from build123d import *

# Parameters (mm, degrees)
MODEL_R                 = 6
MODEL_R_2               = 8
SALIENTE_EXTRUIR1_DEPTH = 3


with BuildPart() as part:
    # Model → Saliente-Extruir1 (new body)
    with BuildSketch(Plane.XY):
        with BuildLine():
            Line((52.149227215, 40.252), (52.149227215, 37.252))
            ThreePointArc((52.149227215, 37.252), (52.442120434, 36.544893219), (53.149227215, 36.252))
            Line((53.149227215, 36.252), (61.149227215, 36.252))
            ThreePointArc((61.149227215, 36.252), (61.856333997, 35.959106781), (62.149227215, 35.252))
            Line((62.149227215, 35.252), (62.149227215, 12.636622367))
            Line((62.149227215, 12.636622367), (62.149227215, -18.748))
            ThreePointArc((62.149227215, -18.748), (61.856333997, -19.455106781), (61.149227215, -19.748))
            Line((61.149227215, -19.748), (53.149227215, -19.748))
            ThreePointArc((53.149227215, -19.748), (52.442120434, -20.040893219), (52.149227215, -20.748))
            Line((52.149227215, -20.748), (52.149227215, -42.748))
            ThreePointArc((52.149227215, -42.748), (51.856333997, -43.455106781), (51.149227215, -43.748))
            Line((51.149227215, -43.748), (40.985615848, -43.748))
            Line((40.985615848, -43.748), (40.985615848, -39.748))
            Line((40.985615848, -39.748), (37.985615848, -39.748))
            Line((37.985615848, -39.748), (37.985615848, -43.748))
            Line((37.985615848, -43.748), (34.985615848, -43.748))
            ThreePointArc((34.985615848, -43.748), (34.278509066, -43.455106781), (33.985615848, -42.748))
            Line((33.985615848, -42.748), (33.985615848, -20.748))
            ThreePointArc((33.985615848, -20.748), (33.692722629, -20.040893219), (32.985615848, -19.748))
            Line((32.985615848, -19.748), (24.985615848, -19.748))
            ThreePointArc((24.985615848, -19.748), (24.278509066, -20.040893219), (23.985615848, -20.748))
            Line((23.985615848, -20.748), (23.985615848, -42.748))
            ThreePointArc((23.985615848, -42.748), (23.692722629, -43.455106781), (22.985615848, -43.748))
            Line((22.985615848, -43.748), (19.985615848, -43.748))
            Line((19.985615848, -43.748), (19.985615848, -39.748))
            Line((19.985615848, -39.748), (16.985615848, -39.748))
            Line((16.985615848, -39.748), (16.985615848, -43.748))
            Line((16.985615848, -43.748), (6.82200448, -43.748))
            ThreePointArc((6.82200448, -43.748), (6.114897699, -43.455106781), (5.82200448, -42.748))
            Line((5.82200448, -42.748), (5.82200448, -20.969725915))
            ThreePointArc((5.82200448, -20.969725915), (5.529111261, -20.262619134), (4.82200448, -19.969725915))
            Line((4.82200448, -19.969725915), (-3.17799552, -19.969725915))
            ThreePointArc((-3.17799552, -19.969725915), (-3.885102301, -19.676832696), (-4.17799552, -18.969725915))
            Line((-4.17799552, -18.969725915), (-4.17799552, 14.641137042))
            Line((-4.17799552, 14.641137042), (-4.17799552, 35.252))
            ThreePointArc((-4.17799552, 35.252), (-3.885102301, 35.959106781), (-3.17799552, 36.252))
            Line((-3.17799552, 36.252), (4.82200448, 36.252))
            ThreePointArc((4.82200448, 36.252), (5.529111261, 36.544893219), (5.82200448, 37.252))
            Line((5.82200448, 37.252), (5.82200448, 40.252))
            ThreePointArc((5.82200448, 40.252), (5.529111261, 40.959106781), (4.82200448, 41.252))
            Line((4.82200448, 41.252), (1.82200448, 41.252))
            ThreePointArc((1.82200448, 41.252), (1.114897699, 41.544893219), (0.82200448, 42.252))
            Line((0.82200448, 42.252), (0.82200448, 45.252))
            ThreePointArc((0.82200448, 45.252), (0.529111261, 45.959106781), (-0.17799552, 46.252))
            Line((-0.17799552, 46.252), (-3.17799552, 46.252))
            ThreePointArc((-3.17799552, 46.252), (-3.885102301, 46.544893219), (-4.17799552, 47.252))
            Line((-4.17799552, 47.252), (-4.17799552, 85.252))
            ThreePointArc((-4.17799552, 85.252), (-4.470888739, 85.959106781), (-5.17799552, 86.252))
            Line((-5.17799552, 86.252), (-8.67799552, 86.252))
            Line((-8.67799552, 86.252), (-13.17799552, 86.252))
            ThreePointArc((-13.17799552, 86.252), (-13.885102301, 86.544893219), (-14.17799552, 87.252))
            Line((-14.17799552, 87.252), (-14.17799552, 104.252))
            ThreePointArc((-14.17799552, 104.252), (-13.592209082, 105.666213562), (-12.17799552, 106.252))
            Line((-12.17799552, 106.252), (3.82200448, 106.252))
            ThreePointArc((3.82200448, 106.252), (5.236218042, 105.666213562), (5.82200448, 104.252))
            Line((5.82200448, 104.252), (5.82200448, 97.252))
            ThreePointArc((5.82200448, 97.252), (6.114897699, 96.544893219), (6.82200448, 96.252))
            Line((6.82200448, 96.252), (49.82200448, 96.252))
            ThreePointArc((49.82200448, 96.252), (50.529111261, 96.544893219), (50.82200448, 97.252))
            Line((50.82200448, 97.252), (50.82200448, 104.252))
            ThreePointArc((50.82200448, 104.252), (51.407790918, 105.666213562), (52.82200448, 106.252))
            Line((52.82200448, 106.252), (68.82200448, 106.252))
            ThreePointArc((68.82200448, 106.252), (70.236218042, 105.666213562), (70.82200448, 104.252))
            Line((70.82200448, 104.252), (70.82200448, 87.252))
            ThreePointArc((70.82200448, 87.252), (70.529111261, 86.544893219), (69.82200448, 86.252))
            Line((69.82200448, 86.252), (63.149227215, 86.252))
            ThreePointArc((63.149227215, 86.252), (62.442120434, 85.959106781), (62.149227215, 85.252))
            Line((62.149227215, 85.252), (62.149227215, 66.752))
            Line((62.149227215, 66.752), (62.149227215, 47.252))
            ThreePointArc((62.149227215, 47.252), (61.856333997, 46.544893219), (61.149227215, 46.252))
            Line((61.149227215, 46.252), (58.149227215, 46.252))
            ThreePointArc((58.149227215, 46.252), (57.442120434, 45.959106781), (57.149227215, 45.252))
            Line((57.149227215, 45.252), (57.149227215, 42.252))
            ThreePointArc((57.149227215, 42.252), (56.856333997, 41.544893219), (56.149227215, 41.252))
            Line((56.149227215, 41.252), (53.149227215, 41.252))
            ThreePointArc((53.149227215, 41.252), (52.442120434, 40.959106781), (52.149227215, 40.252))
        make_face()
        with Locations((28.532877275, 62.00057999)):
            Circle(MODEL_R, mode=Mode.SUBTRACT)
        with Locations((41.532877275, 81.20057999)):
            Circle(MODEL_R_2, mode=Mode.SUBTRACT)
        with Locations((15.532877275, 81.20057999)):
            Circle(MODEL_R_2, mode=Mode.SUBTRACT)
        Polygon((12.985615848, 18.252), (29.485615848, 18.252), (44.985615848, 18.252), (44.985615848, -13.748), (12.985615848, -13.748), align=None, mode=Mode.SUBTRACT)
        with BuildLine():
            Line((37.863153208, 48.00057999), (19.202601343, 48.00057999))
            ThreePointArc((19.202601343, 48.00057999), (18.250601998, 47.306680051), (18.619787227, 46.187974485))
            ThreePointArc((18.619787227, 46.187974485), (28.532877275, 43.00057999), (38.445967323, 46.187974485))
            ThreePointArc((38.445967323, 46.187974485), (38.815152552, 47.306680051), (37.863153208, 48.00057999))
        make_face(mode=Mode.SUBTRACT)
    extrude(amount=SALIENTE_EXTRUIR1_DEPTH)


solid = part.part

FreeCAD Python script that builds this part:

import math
import FreeCAD as App
import Part
import Sketcher


def add_polygon(sketch, points):
    """Adds a closed chain of lines whose ends are joined by coincident constraints."""
    first, n = sketch.GeometryCount, len(points)
    for a, b in zip(points, points[1:] + points[:1]):
        sketch.addGeometry(Part.LineSegment(App.Vector(*a, 0), App.Vector(*b, 0)), False)
    for i in range(n):
        sketch.addConstraint(Sketcher.Constraint("Coincident", first + i, 2, first + (i + 1) % n, 1))

doc = App.newDocument("Part")
body = doc.addObject("PartDesign::Body", "Body")

sketch1 = body.newObject("Sketcher::SketchObject", "Sketch")
sketch1.AttachmentSupport = (doc.getObject("XY_Plane"), [""])
sketch1.MapMode = "FlatFace"
sketch1.addGeometry(Part.LineSegment(App.Vector(52.1, 37.3, 0), App.Vector(52.1, 40.3, 0)), False)
sketch1.addGeometry(Part.ArcOfCircle(Part.Circle(App.Vector(53.1, 40.3, 0), App.Vector(0, 0, 1), 1), math.radians(90), math.radians(180)), False)
sketch1.addGeometry(Part.LineSegment(App.Vector(53.1, 41.3, 0), App.Vector(56.1, 41.3, 0)), False)
sketch1.addGeometry(Part.ArcOfCircle(Part.Circle(App.Vector(56.1, 42.3, 0), App.Vector(0, 0, 1), 1), math.radians(-90), math.radians(0)), False)
sketch1.addGeometry(Part.LineSegment(App.Vector(57.1, 42.3, 0), App.Vector(57.1, 45.3, 0)), False)
sketch1.addGeometry(Part.ArcOfCircle(Part.Circle(App.Vector(58.1, 45.3, 0), App.Vector(0, 0, 1), 1), math.radians(90), math.radians(180)), False)
sketch1.addGeometry(Part.LineSegment(App.Vector(58.1, 46.3, 0), App.Vector(61.1, 46.3, 0)), False)
sketch1.addGeometry(Part.ArcOfCircle(Part.Circle(App.Vector(61.1, 47.3, 0), App.Vector(0, 0, 1), 1), math.radians(-90), math.radians(0)), False)
sketch1.addGeometry(Part.LineSegment(App.Vector(62.1, 47.3, 0), App.Vector(62.1, 85.3, 0)), False)
sketch1.addGeometry(Part.ArcOfCircle(Part.Circle(App.Vector(63.1, 85.3, 0), App.Vector(0, 0, 1), 1), math.radians(90), math.radians(180)), False)
sketch1.addGeometry(Part.LineSegment(App.Vector(63.1, 86.3, 0), App.Vector(69.8, 86.3, 0)), False)
sketch1.addGeometry(Part.ArcOfCircle(Part.Circle(App.Vector(69.8, 87.3, 0), App.Vector(0, 0, 1), 1), math.radians(-90), math.radians(0)), False)
sketch1.addGeometry(Part.LineSegment(App.Vector(70.8, 87.3, 0), App.Vector(70.8, 104.3, 0)), False)
sketch1.addGeometry(Part.ArcOfCircle(Part.Circle(App.Vector(68.8, 104.3, 0), App.Vector(0, 0, 1), 2), math.radians(0), math.radians(90)), False)
sketch1.addGeometry(Part.LineSegment(App.Vector(68.8, 106.3, 0), App.Vector(52.8, 106.3, 0)), False)
sketch1.addGeometry(Part.ArcOfCircle(Part.Circle(App.Vector(52.8, 104.3, 0), App.Vector(0, 0, 1), 2), math.radians(90), math.radians(180)), False)
sketch1.addGeometry(Part.LineSegment(App.Vector(50.8, 104.3, 0), App.Vector(50.8, 97.3, 0)), False)
sketch1.addGeometry(Part.ArcOfCircle(Part.Circle(App.Vector(49.8, 97.3, 0), App.Vector(0, 0, 1), 1), math.radians(-90), math.radians(0)), False)
sketch1.addGeometry(Part.LineSegment(App.Vector(49.8, 96.3, 0), App.Vector(6.8, 96.3, 0)), False)
sketch1.addGeometry(Part.ArcOfCircle(Part.Circle(App.Vector(6.8, 97.3, 0), App.Vector(0, 0, 1), 1), math.radians(-180), math.radians(-90)), False)
sketch1.addGeometry(Part.LineSegment(App.Vector(5.8, 97.3, 0), App.Vector(5.8, 104.3, 0)), False)
sketch1.addGeometry(Part.ArcOfCircle(Part.Circle(App.Vector(3.8, 104.3, 0), App.Vector(0, 0, 1), 2), math.radians(0), math.radians(90)), False)
sketch1.addGeometry(Part.LineSegment(App.Vector(3.8, 106.3, 0), App.Vector(-12.2, 106.3, 0)), False)
sketch1.addGeometry(Part.ArcOfCircle(Part.Circle(App.Vector(-12.2, 104.3, 0), App.Vector(0, 0, 1), 2), math.radians(90), math.radians(180)), False)
sketch1.addGeometry(Part.LineSegment(App.Vector(-14.2, 104.3, 0), App.Vector(-14.2, 87.3, 0)), False)
sketch1.addGeometry(Part.ArcOfCircle(Part.Circle(App.Vector(-13.2, 87.3, 0), App.Vector(0, 0, 1), 1), math.radians(-180), math.radians(-90)), False)
sketch1.addGeometry(Part.LineSegment(App.Vector(-13.2, 86.3, 0), App.Vector(-5.2, 86.3, 0)), False)
sketch1.addGeometry(Part.ArcOfCircle(Part.Circle(App.Vector(-5.2, 85.3, 0), App.Vector(0, 0, 1), 1), math.radians(0), math.radians(90)), False)
sketch1.addGeometry(Part.LineSegment(App.Vector(-4.2, 85.3, 0), App.Vector(-4.2, 47.3, 0)), False)
sketch1.addGeometry(Part.ArcOfCircle(Part.Circle(App.Vector(-3.2, 47.3, 0), App.Vector(0, 0, 1), 1), math.radians(-180), math.radians(-90)), False)
sketch1.addGeometry(Part.LineSegment(App.Vector(-3.2, 46.3, 0), App.Vector(-0.2, 46.3, 0)), False)
sketch1.addGeometry(Part.ArcOfCircle(Part.Circle(App.Vector(-0.2, 45.3, 0), App.Vector(0, 0, 1), 1), math.radians(0), math.radians(90)), False)
sketch1.addGeometry(Part.LineSegment(App.Vector(0.8, 45.3, 0), App.Vector(0.8, 42.3, 0)), False)
sketch1.addGeometry(Part.ArcOfCircle(Part.Circle(App.Vector(1.8, 42.3, 0), App.Vector(0, 0, 1), 1), math.radians(-180), math.radians(-90)), False)
sketch1.addGeometry(Part.LineSegment(App.Vector(1.8, 41.3, 0), App.Vector(4.8, 41.3, 0)), False)
sketch1.addGeometry(Part.ArcOfCircle(Part.Circle(App.Vector(4.8, 40.3, 0), App.Vector(0, 0, 1), 1), math.radians(0), math.radians(90)), False)
sketch1.addGeometry(Part.LineSegment(App.Vector(5.8, 40.3, 0), App.Vector(5.8, 37.3, 0)), False)
sketch1.addGeometry(Part.ArcOfCircle(Part.Circle(App.Vector(4.8, 37.3, 0), App.Vector(0, 0, 1), 1), math.radians(-90), math.radians(0)), False)
sketch1.addGeometry(Part.LineSegment(App.Vector(4.8, 36.3, 0), App.Vector(-3.2, 36.3, 0)), False)
sketch1.addGeometry(Part.ArcOfCircle(Part.Circle(App.Vector(-3.2, 35.3, 0), App.Vector(0, 0, 1), 1), math.radians(90), math.radians(180)), False)
sketch1.addGeometry(Part.LineSegment(App.Vector(-4.2, 35.3, 0), App.Vector(-4.2, -19, 0)), False)
sketch1.addGeometry(Part.ArcOfCircle(Part.Circle(App.Vector(-3.2, -19, 0), App.Vector(0, 0, 1), 1), math.radians(-180), math.radians(-90)), False)
sketch1.addGeometry(Part.LineSegment(App.Vector(-3.2, -20, 0), App.Vector(4.8, -20, 0)), False)
sketch1.addGeometry(Part.ArcOfCircle(Part.Circle(App.Vector(4.8, -21, 0), App.Vector(0, 0, 1), 1), math.radians(0), math.radians(90)), False)
sketch1.addGeometry(Part.LineSegment(App.Vector(5.8, -21, 0), App.Vector(5.8, -42.7, 0)), False)
sketch1.addGeometry(Part.ArcOfCircle(Part.Circle(App.Vector(6.8, -42.7, 0), App.Vector(0, 0, 1), 1), math.radians(-180), math.radians(-90)), False)
sketch1.addGeometry(Part.LineSegment(App.Vector(6.8, -43.7, 0), App.Vector(17, -43.7, 0)), False)
sketch1.addGeometry(Part.LineSegment(App.Vector(17, -43.7, 0), App.Vector(17, -39.7, 0)), False)
sketch1.addGeometry(Part.LineSegment(App.Vector(17, -39.7, 0), App.Vector(20, -39.7, 0)), False)
sketch1.addGeometry(Part.LineSegment(App.Vector(20, -39.7, 0), App.Vector(20, -43.7, 0)), False)
sketch1.addGeometry(Part.LineSegment(App.Vector(20, -43.7, 0), App.Vector(23, -43.7, 0)), False)
sketch1.addGeometry(Part.ArcOfCircle(Part.Circle(App.Vector(23, -42.7, 0), App.Vector(0, 0, 1), 1), math.radians(-90), math.radians(0)), False)
sketch1.addGeometry(Part.LineSegment(App.Vector(24, -42.7, 0), App.Vector(24, -20.7, 0)), False)
sketch1.addGeometry(Part.ArcOfCircle(Part.Circle(App.Vector(25, -20.7, 0), App.Vector(0, 0, 1), 1), math.radians(90), math.radians(180)), False)
sketch1.addGeometry(Part.LineSegment(App.Vector(25, -19.7, 0), App.Vector(33, -19.7, 0)), False)
sketch1.addGeometry(Part.ArcOfCircle(Part.Circle(App.Vector(33, -20.7, 0), App.Vector(0, 0, 1), 1), math.radians(0), math.radians(90)), False)
sketch1.addGeometry(Part.LineSegment(App.Vector(34, -20.7, 0), App.Vector(34, -42.7, 0)), False)
sketch1.addGeometry(Part.ArcOfCircle(Part.Circle(App.Vector(35, -42.7, 0), App.Vector(0, 0, 1), 1), math.radians(180), math.radians(270)), False)
sketch1.addGeometry(Part.LineSegment(App.Vector(35, -43.7, 0), App.Vector(38, -43.7, 0)), False)
sketch1.addGeometry(Part.LineSegment(App.Vector(38, -43.7, 0), App.Vector(38, -39.7, 0)), False)
sketch1.addGeometry(Part.LineSegment(App.Vector(38, -39.7, 0), App.Vector(41, -39.7, 0)), False)
sketch1.addGeometry(Part.LineSegment(App.Vector(41, -39.7, 0), App.Vector(41, -43.7, 0)), False)
sketch1.addGeometry(Part.LineSegment(App.Vector(41, -43.7, 0), App.Vector(51.1, -43.7, 0)), False)
sketch1.addGeometry(Part.ArcOfCircle(Part.Circle(App.Vector(51.1, -42.7, 0), App.Vector(0, 0, 1), 1), math.radians(-90), math.radians(0)), False)
sketch1.addGeometry(Part.LineSegment(App.Vector(52.1, -42.7, 0), App.Vector(52.1, -20.7, 0)), False)
sketch1.addGeometry(Part.ArcOfCircle(Part.Circle(App.Vector(53.1, -20.7, 0), App.Vector(0, 0, 1), 1), math.radians(90), math.radians(180)), False)
sketch1.addGeometry(Part.LineSegment(App.Vector(53.1, -19.7, 0), App.Vector(61.1, -19.7, 0)), False)
sketch1.addGeometry(Part.ArcOfCircle(Part.Circle(App.Vector(61.1, -18.7, 0), App.Vector(0, 0, 1), 1), math.radians(-90), math.radians(0)), False)
sketch1.addGeometry(Part.LineSegment(App.Vector(62.1, -18.7, 0), App.Vector(62.1, 35.3, 0)), False)
sketch1.addGeometry(Part.ArcOfCircle(Part.Circle(App.Vector(61.1, 35.3, 0), App.Vector(0, 0, 1), 1), math.radians(0), math.radians(90)), False)
sketch1.addGeometry(Part.LineSegment(App.Vector(61.1, 36.3, 0), App.Vector(53.1, 36.3, 0)), False)
sketch1.addGeometry(Part.ArcOfCircle(Part.Circle(App.Vector(53.1, 37.3, 0), App.Vector(0, 0, 1), 1), math.radians(-180), math.radians(-90)), False)
add_polygon(sketch1, [(13, 18.3), (45, 18.3), (45, -13.7), (13, -13.7)])
sketch1.addGeometry(Part.ArcOfCircle(Part.Circle(App.Vector(37.9, 47, 0), App.Vector(0, 0, 1), 1), math.radians(-54), math.radians(90)), False)
sketch1.addGeometry(Part.ArcOfCircle(Part.Circle(App.Vector(28.5, 60, 0), App.Vector(0, 0, 1), 17), math.radians(-126), math.radians(-54)), False)
sketch1.addGeometry(Part.ArcOfCircle(Part.Circle(App.Vector(19.2, 47, 0), App.Vector(0, 0, 1), 1), math.radians(90), math.radians(234)), False)
sketch1.addGeometry(Part.LineSegment(App.Vector(19.2, 48, 0), App.Vector(37.9, 48, 0)), False)
sketch1.addGeometry(Part.Circle(App.Vector(28.5, 62, 0), App.Vector(0, 0, 1), 6), False)
sketch1.addGeometry(Part.Circle(App.Vector(41.5, 81.2, 0), App.Vector(0, 0, 1), 8), False)
sketch1.addGeometry(Part.Circle(App.Vector(15.5, 81.2, 0), App.Vector(0, 0, 1), 8), False)
sketch1.addConstraint([
    Sketcher.Constraint("Tangent", 0, 2, 1, 2),
    Sketcher.Constraint("Tangent", 1, 1, 2, 1),
    Sketcher.Constraint("Tangent", 2, 2, 3, 1),
    Sketcher.Constraint("Tangent", 3, 2, 4, 1),
    Sketcher.Constraint("Tangent", 4, 2, 5, 2),
    Sketcher.Constraint("Tangent", 5, 1, 6, 1),
    Sketcher.Constraint("Tangent", 6, 2, 7, 1),
    Sketcher.Constraint("Tangent", 7, 2, 8, 1),
    Sketcher.Constraint("Tangent", 8, 2, 9, 2),
    Sketcher.Constraint("Tangent", 9, 1, 10, 1),
    Sketcher.Constraint("Tangent", 10, 2, 11, 1),
    Sketcher.Constraint("Tangent", 11, 2, 12, 1),
    Sketcher.Constraint("Tangent", 12, 2, 13, 1),
    Sketcher.Constraint("Tangent", 13, 2, 14, 1),
    Sketcher.Constraint("Tangent", 14, 2, 15, 1),
    Sketcher.Constraint("Tangent", 15, 2, 16, 1),
    Sketcher.Constraint("Tangent", 16, 2, 17, 2),
    Sketcher.Constraint("Tangent", 17, 1, 18, 1),
    Sketcher.Constraint("Tangent", 18, 2, 19, 2),
    Sketcher.Constraint("Tangent", 19, 1, 20, 1),
    Sketcher.Constraint("Tangent", 20, 2, 21, 1),
    Sketcher.Constraint("Tangent", 21, 2, 22, 1),
    Sketcher.Constraint("Tangent", 22, 2, 23, 1),
    Sketcher.Constraint("Tangent", 23, 2, 24, 1),
    Sketcher.Constraint("Tangent", 24, 2, 25, 1),
    Sketcher.Constraint("Tangent", 25, 2, 26, 1),
    Sketcher.Constraint("Tangent", 26, 2, 27, 2),
    Sketcher.Constraint("Tangent", 27, 1, 28, 1),
    Sketcher.Constraint("Tangent", 28, 2, 29, 1),
    Sketcher.Constraint("Tangent", 29, 2, 30, 1),
    Sketcher.Constraint("Tangent", 30, 2, 31, 2),
    Sketcher.Constraint("Tangent", 31, 1, 32, 1),
    Sketcher.Constraint("Tangent", 32, 2, 33, 1),
    Sketcher.Constraint("Tangent", 33, 2, 34, 1),
    Sketcher.Constraint("Tangent", 34, 2, 35, 2),
    Sketcher.Constraint("Tangent", 35, 1, 36, 1),
    Sketcher.Constraint("Tangent", 36, 2, 37, 2),
    Sketcher.Constraint("Tangent", 37, 1, 38, 1),
    Sketcher.Constraint("Tangent", 38, 2, 39, 1),
    Sketcher.Constraint("Tangent", 39, 2, 40, 1),
    Sketcher.Constraint("Tangent", 40, 2, 41, 1),
    Sketcher.Constraint("Tangent", 41, 2, 42, 1),
    Sketcher.Constraint("Tangent", 42, 2, 43, 2),
    Sketcher.Constraint("Tangent", 43, 1, 44, 1),
    Sketcher.Constraint("Tangent", 44, 2, 45, 1),
    Sketcher.Constraint("Tangent", 45, 2, 46, 1),
    Sketcher.Constraint("Coincident", 46, 2, 47, 1),
    Sketcher.Constraint("Coincident", 47, 2, 48, 1),
    Sketcher.Constraint("Coincident", 48, 2, 49, 1),
    Sketcher.Constraint("Coincident", 49, 2, 50, 1),
    Sketcher.Constraint("Tangent", 50, 2, 51, 1),
    Sketcher.Constraint("Tangent", 51, 2, 52, 1),
    Sketcher.Constraint("Tangent", 52, 2, 53, 2),
    Sketcher.Constraint("Tangent", 53, 1, 54, 1),
    Sketcher.Constraint("Tangent", 54, 2, 55, 2),
    Sketcher.Constraint("Tangent", 55, 1, 56, 1),
    Sketcher.Constraint("Tangent", 56, 2, 57, 1),
    Sketcher.Constraint("Tangent", 57, 2, 58, 1),
    Sketcher.Constraint("Coincident", 58, 2, 59, 1),
    Sketcher.Constraint("Coincident", 59, 2, 60, 1),
    Sketcher.Constraint("Coincident", 60, 2, 61, 1),
    Sketcher.Constraint("Coincident", 61, 2, 62, 1),
    Sketcher.Constraint("Tangent", 62, 2, 63, 1),
    Sketcher.Constraint("Tangent", 63, 2, 64, 1),
    Sketcher.Constraint("Tangent", 64, 2, 65, 2),
    Sketcher.Constraint("Tangent", 65, 1, 66, 1),
    Sketcher.Constraint("Tangent", 66, 2, 67, 1),
    Sketcher.Constraint("Tangent", 67, 2, 68, 1),
    Sketcher.Constraint("Tangent", 68, 2, 69, 1),
    Sketcher.Constraint("Tangent", 69, 2, 70, 1),
    Sketcher.Constraint("Tangent", 70, 2, 71, 2),
    Sketcher.Constraint("Tangent", 71, 1, 0, 1),
    Sketcher.Constraint("Tangent", 76, 1, 77, 2),
    Sketcher.Constraint("Tangent", 77, 1, 78, 2),
    Sketcher.Constraint("Tangent", 78, 1, 79, 1),
    Sketcher.Constraint("Tangent", 79, 2, 76, 2),
    Sketcher.Constraint("Vertical", 0),
    Sketcher.Constraint("Horizontal", 2),
    Sketcher.Constraint("Vertical", 4),
    Sketcher.Constraint("Horizontal", 6),
    Sketcher.Constraint("Vertical", 8),
    Sketcher.Constraint("Horizontal", 10),
    Sketcher.Constraint("Vertical", 12),
    Sketcher.Constraint("Horizontal", 14),
    Sketcher.Constraint("Vertical", 16),
    Sketcher.Constraint("Horizontal", 18),
    Sketcher.Constraint("Vertical", 20),
    Sketcher.Constraint("Horizontal", 22),
    Sketcher.Constraint("Vertical", 24),
    Sketcher.Constraint("Horizontal", 26),
    Sketcher.Constraint("Vertical", 28),
    Sketcher.Constraint("Horizontal", 30),
    Sketcher.Constraint("Vertical", 32),
    Sketcher.Constraint("Horizontal", 34),
    Sketcher.Constraint("Vertical", 36),
    Sketcher.Constraint("Horizontal", 38),
    Sketcher.Constraint("Vertical", 40),
    Sketcher.Constraint("Horizontal", 42),
    Sketcher.Constraint("Vertical", 44),
    Sketcher.Constraint("Horizontal", 46),
    Sketcher.Constraint("Vertical", 47),
    Sketcher.Constraint("Horizontal", 48),
    Sketcher.Constraint("Vertical", 49),
    Sketcher.Constraint("Horizontal", 50),
    Sketcher.Constraint("Vertical", 52),
    Sketcher.Constraint("Horizontal", 54),
    Sketcher.Constraint("Vertical", 56),
    Sketcher.Constraint("Horizontal", 58),
    Sketcher.Constraint("Vertical", 59),
    Sketcher.Constraint("Horizontal", 60),
    Sketcher.Constraint("Vertical", 61),
    Sketcher.Constraint("Horizontal", 62),
    Sketcher.Constraint("Vertical", 64),
    Sketcher.Constraint("Horizontal", 66),
    Sketcher.Constraint("Vertical", 68),
    Sketcher.Constraint("Horizontal", 70),
    Sketcher.Constraint("Horizontal", 72),
    Sketcher.Constraint("Vertical", 73),
    Sketcher.Constraint("Horizontal", 74),
    Sketcher.Constraint("Vertical", 75),
    Sketcher.Constraint("Horizontal", 79),
    Sketcher.Constraint("Equal", 1, 3),
    Sketcher.Constraint("Equal", 3, 5),
    Sketcher.Constraint("Equal", 5, 7),
    Sketcher.Constraint("Equal", 7, 9),
    Sketcher.Constraint("Equal", 9, 11),
    Sketcher.Constraint("Equal", 13, 15),
    Sketcher.Constraint("Equal", 11, 17),
    Sketcher.Constraint("Equal", 17, 19),
    Sketcher.Constraint("Equal", 15, 21),
    Sketcher.Constraint("Equal", 21, 23),
    Sketcher.Constraint("Equal", 19, 25),
    Sketcher.Constraint("Equal", 25, 27),
    Sketcher.Constraint("Equal", 27, 29),
    Sketcher.Constraint("Equal", 29, 31),
    Sketcher.Constraint("Equal", 31, 33),
    Sketcher.Constraint("Equal", 33, 35),
    Sketcher.Constraint("Equal", 35, 37),
    Sketcher.Constraint("Equal", 37, 39),
    Sketcher.Constraint("Equal", 39, 41),
    Sketcher.Constraint("Equal", 41, 43),
    Sketcher.Constraint("Equal", 43, 45),
    Sketcher.Constraint("Equal", 45, 51),
    Sketcher.Constraint("Equal", 51, 53),
    Sketcher.Constraint("Equal", 53, 55),
    Sketcher.Constraint("Equal", 55, 57),
    Sketcher.Constraint("Equal", 57, 63),
    Sketcher.Constraint("Equal", 63, 65),
    Sketcher.Constraint("Equal", 65, 67),
    Sketcher.Constraint("Equal", 67, 69),
    Sketcher.Constraint("Equal", 69, 71),
    Sketcher.Constraint("Equal", 71, 76),
    Sketcher.Constraint("Equal", 76, 78),
    Sketcher.Constraint("Equal", 81, 82),
    Sketcher.Constraint("Horizontal", 15, 3, 21, 3),
    Sketcher.Constraint("Horizontal", 11, 3, 25, 3),
    Sketcher.Constraint("Horizontal", 7, 3, 29, 3),
    Sketcher.Constraint("Horizontal", 3, 3, 33, 3),
    Sketcher.Constraint("Horizontal", 45, 3, 51, 3),
    Sketcher.Constraint("Horizontal", 51, 3, 57, 3),
    Sketcher.Constraint("Horizontal", 57, 3, 63, 3),
    Sketcher.Constraint("Horizontal", 55, 3, 65, 3),
    Sketcher.Constraint("Horizontal", 39, 3, 69, 3),
    Sketcher.Constraint("Horizontal", 81, 3, 82, 3),
    Sketcher.Constraint("Horizontal", 48, 2, 59, 2),
    Sketcher.Constraint("Vertical", 29, 3, 39, 3),
    Sketcher.Constraint("Vertical", 37, 3, 43, 3),
    Sketcher.Constraint("Vertical", 19, 3, 45, 3),
    Sketcher.Constraint("Vertical", 1, 3, 65, 3),
    Sketcher.Constraint("Vertical", 7, 3, 67, 3),
    Sketcher.Constraint("Vertical", 77, 3, 80, 3),
    Sketcher.Constraint("Equal", 2, 6),
    Sketcher.Constraint("Equal", 14, 22),
    Sketcher.Constraint("Equal", 6, 30),
    Sketcher.Constraint("Equal", 30, 34),
    Sketcher.Constraint("Equal", 26, 38),
    Sketcher.Constraint("Equal", 34, 48),
    Sketcher.Constraint("Equal", 48, 50),
    Sketcher.Constraint("Equal", 42, 54),
    Sketcher.Constraint("Equal", 50, 58),
    Sketcher.Constraint("Equal", 58, 60),
    Sketcher.Constraint("Equal", 46, 62),
    Sketcher.Constraint("Equal", 60, 0),
    Sketcher.Constraint("Equal", 0, 4),
    Sketcher.Constraint("Equal", 74, 73),
    Sketcher.Constraint("Diameter", 80, 12.0),
    Sketcher.Constraint("Diameter", 81, 16.0),
    Sketcher.Constraint("Radius", 1, 1.0),
    Sketcher.Constraint("Radius", 13, 2.0),
    Sketcher.Constraint("DistanceX", 2, 1, 2, 2, 3.0),
    Sketcher.Constraint("DistanceX", 18, 2, 18, 1, 43.0),
    Sketcher.Constraint("DistanceX", 72, 1, 72, 2, 32.0),
    Sketcher.Constraint("DistanceY", 8, 1, 8, 2, 38.0),
    Sketcher.Constraint("DistanceY", 12, 1, 12, 2, 17.0),
    Sketcher.Constraint("DistanceY", 16, 2, 16, 1, 7.0),
    Sketcher.Constraint("DistanceY", 47, 1, 47, 2, 4.0),
    Sketcher.Constraint("DistanceY", 52, 1, 52, 2, 22.0),
    Sketcher.Constraint("DistanceY", 68, 1, 68, 2, 54.0),
    Sketcher.Constraint("Radius", 77, 17.009008),
    Sketcher.Constraint("DistanceY", -1, 1, 1, 3, 40.252),
    Sketcher.Constraint("DistanceY", -1, 1, 72, 2, 18.252),
    Sketcher.Constraint("DistanceX", 46, 1, 46, 2, 10.163611),
    Sketcher.Constraint("DistanceX", 79, 1, 79, 2, 18.660552),
    Sketcher.Constraint("DistanceX", -1, 1, 78, 3, 19.202601),
    Sketcher.Constraint("DistanceY", 40, 2, 40, 1, 54.221726),
    Sketcher.Constraint("DistanceY", -1, 1, 76, 3, 47.00058),
    Sketcher.Constraint("DistanceY", -1, 1, 80, 3, 62.00058),
    Sketcher.Constraint("DistanceY", -1, 1, 81, 3, 81.20058),
    Sketcher.Constraint("DistanceX", -1, 1, 1, 3, 53.149227),
    Sketcher.Constraint("DistanceX", -1, 1, 81, 3, 41.532877),
    Sketcher.Constraint("DistanceX", -1, 1, 82, 3, 15.532877),
    Sketcher.Constraint("DistanceX", -1, 1, 72, 2, 44.985616),
])
pad1 = body.newObject("PartDesign::Pad", "Pad")
pad1.Profile = sketch1
pad1.Length = 3

doc.recompute()
